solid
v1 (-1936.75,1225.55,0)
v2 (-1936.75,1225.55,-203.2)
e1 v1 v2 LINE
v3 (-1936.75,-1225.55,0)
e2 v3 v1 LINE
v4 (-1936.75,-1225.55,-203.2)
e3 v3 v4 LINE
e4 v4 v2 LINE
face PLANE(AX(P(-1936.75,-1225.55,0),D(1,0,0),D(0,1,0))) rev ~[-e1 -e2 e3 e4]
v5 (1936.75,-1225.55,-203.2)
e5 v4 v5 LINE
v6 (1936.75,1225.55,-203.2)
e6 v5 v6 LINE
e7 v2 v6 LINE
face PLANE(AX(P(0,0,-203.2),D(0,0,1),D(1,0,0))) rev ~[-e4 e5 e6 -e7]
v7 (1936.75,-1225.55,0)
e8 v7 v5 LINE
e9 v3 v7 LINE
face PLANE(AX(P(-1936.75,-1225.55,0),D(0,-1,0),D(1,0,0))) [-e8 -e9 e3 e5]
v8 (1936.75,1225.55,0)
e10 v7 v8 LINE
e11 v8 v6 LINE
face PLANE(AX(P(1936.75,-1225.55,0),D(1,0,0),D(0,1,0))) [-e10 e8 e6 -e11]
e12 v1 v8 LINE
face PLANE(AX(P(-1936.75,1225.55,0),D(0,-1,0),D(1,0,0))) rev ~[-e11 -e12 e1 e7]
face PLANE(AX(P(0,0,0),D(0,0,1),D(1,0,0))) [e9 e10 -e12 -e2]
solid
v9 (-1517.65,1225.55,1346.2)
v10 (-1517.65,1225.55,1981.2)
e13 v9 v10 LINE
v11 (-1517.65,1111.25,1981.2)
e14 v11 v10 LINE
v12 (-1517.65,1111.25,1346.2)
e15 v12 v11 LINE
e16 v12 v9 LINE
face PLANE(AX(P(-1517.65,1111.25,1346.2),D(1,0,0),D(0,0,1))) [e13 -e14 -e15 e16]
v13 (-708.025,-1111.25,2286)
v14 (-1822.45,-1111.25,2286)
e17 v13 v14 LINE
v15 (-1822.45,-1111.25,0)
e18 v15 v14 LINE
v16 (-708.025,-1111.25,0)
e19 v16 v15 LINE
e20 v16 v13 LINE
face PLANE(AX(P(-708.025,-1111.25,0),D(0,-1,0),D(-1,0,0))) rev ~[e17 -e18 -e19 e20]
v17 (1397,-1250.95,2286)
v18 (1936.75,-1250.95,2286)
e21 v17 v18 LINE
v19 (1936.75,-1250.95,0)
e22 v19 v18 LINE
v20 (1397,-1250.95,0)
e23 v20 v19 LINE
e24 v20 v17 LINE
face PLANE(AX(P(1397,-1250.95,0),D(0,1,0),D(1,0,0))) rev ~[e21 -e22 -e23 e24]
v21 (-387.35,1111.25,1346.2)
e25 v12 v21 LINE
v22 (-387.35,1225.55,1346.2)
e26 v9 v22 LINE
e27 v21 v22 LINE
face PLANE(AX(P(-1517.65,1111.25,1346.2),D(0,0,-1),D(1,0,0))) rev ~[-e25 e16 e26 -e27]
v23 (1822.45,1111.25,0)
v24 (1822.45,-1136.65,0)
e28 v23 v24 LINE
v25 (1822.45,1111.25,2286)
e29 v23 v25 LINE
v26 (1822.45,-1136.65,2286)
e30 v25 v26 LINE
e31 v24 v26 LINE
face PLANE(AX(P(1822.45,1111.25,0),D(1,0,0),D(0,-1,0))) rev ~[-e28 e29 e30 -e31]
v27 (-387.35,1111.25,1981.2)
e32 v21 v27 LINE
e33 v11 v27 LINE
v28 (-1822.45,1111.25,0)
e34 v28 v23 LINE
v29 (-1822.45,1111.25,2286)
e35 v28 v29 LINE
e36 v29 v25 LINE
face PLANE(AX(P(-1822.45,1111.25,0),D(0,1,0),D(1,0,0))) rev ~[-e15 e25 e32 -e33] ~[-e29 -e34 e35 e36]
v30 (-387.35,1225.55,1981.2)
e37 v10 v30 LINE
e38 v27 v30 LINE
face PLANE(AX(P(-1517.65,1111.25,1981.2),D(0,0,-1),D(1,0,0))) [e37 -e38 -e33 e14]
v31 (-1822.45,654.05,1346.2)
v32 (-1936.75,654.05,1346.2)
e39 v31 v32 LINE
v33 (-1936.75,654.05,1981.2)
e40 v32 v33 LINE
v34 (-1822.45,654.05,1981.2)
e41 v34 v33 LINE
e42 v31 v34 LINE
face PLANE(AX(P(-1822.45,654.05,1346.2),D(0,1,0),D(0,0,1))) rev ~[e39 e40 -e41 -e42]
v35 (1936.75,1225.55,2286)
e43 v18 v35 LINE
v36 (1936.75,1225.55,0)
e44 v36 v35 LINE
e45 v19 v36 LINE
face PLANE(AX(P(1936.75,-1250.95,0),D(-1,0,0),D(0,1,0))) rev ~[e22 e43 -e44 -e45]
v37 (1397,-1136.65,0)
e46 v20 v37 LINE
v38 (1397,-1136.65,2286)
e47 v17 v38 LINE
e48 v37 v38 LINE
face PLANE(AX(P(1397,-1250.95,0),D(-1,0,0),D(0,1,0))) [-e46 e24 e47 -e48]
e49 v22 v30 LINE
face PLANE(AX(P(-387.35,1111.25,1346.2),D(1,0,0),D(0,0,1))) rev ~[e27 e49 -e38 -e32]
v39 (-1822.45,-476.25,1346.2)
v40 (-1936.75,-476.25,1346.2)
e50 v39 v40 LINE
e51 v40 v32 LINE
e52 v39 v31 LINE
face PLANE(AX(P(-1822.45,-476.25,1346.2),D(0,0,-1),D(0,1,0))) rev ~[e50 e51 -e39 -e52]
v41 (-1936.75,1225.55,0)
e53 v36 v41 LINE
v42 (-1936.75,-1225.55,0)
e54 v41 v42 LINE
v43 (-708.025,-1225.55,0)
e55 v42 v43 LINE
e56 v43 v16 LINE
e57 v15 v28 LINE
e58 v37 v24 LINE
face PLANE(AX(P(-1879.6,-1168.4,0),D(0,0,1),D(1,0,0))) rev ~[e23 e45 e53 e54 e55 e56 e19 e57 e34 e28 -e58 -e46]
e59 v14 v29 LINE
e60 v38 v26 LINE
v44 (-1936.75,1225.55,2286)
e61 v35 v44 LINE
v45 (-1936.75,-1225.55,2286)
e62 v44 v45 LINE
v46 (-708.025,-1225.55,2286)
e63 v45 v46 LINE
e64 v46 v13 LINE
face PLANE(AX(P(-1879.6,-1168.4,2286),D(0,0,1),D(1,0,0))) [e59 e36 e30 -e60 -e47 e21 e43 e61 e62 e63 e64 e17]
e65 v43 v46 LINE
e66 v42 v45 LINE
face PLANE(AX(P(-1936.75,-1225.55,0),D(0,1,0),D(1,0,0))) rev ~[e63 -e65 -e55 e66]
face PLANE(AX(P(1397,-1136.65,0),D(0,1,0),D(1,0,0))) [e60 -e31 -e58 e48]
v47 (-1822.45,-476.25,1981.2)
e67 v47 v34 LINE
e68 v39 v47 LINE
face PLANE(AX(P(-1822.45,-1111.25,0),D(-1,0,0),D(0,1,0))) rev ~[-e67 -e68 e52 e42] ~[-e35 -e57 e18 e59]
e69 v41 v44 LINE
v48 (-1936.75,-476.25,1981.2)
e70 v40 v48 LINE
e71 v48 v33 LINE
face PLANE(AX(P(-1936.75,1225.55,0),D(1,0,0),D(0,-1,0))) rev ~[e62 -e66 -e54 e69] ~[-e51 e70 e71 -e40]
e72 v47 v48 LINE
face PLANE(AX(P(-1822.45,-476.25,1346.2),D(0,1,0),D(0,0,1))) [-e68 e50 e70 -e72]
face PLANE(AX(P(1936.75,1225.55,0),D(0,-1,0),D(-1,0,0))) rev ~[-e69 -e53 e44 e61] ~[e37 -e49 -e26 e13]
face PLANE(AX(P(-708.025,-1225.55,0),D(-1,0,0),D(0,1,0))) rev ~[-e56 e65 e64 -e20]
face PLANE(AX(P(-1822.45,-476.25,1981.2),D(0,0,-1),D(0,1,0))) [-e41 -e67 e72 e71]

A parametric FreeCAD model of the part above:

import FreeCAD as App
import Part
import Sketcher
from FreeCAD import Vector
Q = App.Units.Quantity


def add_polygon(sketch, points):
    """Adds a closed chain of lines whose ends are joined by coincident constraints."""
    first, n = sketch.GeometryCount, len(points)
    for a, b in zip(points, points[1:] + points[:1]):
        sketch.addGeometry(Part.LineSegment(App.Vector(*a, 0), App.Vector(*b, 0)), False)
    for i in range(n):
        sketch.addConstraint(Sketcher.Constraint("Coincident", first + i, 2, first + (i + 1) % n, 1))

doc = App.newDocument("Part")
body = doc.addObject("PartDesign::Body", "Body")

# Sketch on XY plane
sketch1 = body.newObject("Sketcher::SketchObject", "Sketch")
sketch1.AttachmentSupport = (doc.getObject("XY_Plane"), [""])
sketch1.MapMode = "FlatFace"
add_polygon(sketch1, [(-1937, 1226), (-1937, -1226), (1937, -1226), (1937, 1226)])  # lines 0-3
sketch1.addConstraint([
    Sketcher.Constraint("Vertical", 0),
    Sketcher.Constraint("Horizontal", 1),
    Sketcher.Constraint("Vertical", 2),
    Sketcher.Constraint("Horizontal", 3),
    Sketcher.Constraint("Symmetric", 0, 2, 2, 2, -1, 1),
    Sketcher.Constraint("DistanceX", 1, 1, 1, 2, Q("152.5 in")),
    Sketcher.Constraint("DistanceY", 0, 2, 0, 1, Q("96.5 in")),
])
pad1 = body.newObject("PartDesign::Pad", "Pad")
pad1.Profile = sketch1
pad1.Length = Q("8 in")
pad1.Reversed = True
body2 = doc.addObject("PartDesign::Body", "Body001")

# Sketch on XY plane
sketch2 = body2.newObject("Sketcher::SketchObject", "Sketch001")
sketch2.AttachmentSupport = (doc.getObject("XY_Plane001"), [""])
sketch2.MapMode = "FlatFace"
add_polygon(sketch2, [(-1937, -1226), (-708, -1226), (-708, -1111), (-1822, -1111), (-1822, 1111), (1822, 1111), (1822, -1137), (1397, -1137), (1397, -1251), (1937, -1251), (1937, 1226), (-1937, 1226)])  # lines 0-11
sketch2.addConstraint([
    Sketcher.Constraint("Horizontal", 0),
    Sketcher.Constraint("Vertical", 1),
    Sketcher.Constraint("Horizontal", 2),
    Sketcher.Constraint("Vertical", 3),
    Sketcher.Constraint("Horizontal", 4),
    Sketcher.Constraint("Vertical", 5),
    Sketcher.Constraint("Horizontal", 6),
    Sketcher.Constraint("Vertical", 7),
    Sketcher.Constraint("Horizontal", 8),
    Sketcher.Constraint("Vertical", 9),
    Sketcher.Constraint("Horizontal", 10),
    Sketcher.Constraint("Vertical", 11),
    Sketcher.Constraint("Symmetric", 2, 2, 4, 2, -1, 1),
    Sketcher.Constraint("Symmetric", 9, 2, 11, 2, -1, 1),
    Sketcher.Constraint("Equal", 1, 7),
    Sketcher.Constraint("DistanceX", 4, 1, 4, 2, Q("143.5 in")),
    Sketcher.Constraint("DistanceX", 10, 2, 10, 1, Q("152.5 in")),
    Sketcher.Constraint("DistanceY", 1, 1, 1, 2, Q("4.5 in")),
    Sketcher.Constraint("DistanceY", 3, 1, 3, 2, Q("87.5 in")),
    Sketcher.Constraint("DistanceY", 5, 2, 5, 1, Q("88.5 in")),
    Sketcher.Constraint("DistanceX", -1, 1, 6, 2, Q("55 in")),
    Sketcher.Constraint("DistanceX", 0, 1, 0, 2, Q("48.375 in")),
])
pad2 = body2.newObject("PartDesign::Pad", "Pad001")
pad2.Profile = sketch2
pad2.Length = Q("90 in")

# Sketch on XZ plane
sketch3 = body2.newObject("Sketcher::SketchObject", "Sketch002")
sketch3.AttachmentSupport = (doc.getObject("XZ_Plane001"), [""])
sketch3.MapMode = "FlatFace"
sketch3.AttachmentOffset = App.Placement(Vector(0, 0, -43.75 * 25.4), App.Rotation())
add_polygon(sketch3, [(-1518, 1981), (-1518, 1346), (-387, 1346), (-387, 1981)])  # lines 0-3
sketch3.addConstraint([
    Sketcher.Constraint("Vertical", 0),
    Sketcher.Constraint("Horizontal", 1),
    Sketcher.Constraint("Vertical", 2),
    Sketcher.Constraint("Horizontal", 3),
    Sketcher.Constraint("DistanceY", 0, 2, 0, 1, Q("25 in")),
    Sketcher.Constraint("DistanceX", 1, 1, 1, 2, Q("44.5 in")),
    Sketcher.Constraint("DistanceY", -1, 1, 0, 2, Q("53 in")),
    Sketcher.Constraint("DistanceX", 0, 2, -1, 1, Q("59.75 in")),
])
pocket1 = body2.newObject("PartDesign::Pocket", "Pocket")
pocket1.Profile = sketch3
pocket1.Type = "ThroughAll"

# Sketch on YZ plane
sketch4 = body2.newObject("Sketcher::SketchObject", "Sketch003")
sketch4.AttachmentSupport = (doc.getObject("YZ_Plane001"), [""])
sketch4.MapMode = "FlatFace"
sketch4.AttachmentOffset = App.Placement(Vector(0, 0, -71.75 * 25.4), App.Rotation())
add_polygon(sketch4, [(-476, 1981), (-476, 1346), (654, 1346), (654, 1981)])  # lines 0-3
sketch4.addConstraint([
    Sketcher.Constraint("Vertical", 0),
    Sketcher.Constraint("Horizontal", 1),
    Sketcher.Constraint("Vertical", 2),
    Sketcher.Constraint("Horizontal", 3),
    Sketcher.Constraint("DistanceY", 0, 2, 0, 1, Q("25 in")),
    Sketcher.Constraint("DistanceX", 1, 1, 1, 2, Q("44.5 in")),
    Sketcher.Constraint("DistanceY", -1, 1, 0, 2, Q("53 in")),
    Sketcher.Constraint("DistanceX", 0, 2, -1, 1, Q("18.75 in")),
])
pocket2 = body2.newObject("PartDesign::Pocket", "Pocket001")
pocket2.Profile = sketch4
pocket2.Type = "ThroughAll"

doc.recompute()
